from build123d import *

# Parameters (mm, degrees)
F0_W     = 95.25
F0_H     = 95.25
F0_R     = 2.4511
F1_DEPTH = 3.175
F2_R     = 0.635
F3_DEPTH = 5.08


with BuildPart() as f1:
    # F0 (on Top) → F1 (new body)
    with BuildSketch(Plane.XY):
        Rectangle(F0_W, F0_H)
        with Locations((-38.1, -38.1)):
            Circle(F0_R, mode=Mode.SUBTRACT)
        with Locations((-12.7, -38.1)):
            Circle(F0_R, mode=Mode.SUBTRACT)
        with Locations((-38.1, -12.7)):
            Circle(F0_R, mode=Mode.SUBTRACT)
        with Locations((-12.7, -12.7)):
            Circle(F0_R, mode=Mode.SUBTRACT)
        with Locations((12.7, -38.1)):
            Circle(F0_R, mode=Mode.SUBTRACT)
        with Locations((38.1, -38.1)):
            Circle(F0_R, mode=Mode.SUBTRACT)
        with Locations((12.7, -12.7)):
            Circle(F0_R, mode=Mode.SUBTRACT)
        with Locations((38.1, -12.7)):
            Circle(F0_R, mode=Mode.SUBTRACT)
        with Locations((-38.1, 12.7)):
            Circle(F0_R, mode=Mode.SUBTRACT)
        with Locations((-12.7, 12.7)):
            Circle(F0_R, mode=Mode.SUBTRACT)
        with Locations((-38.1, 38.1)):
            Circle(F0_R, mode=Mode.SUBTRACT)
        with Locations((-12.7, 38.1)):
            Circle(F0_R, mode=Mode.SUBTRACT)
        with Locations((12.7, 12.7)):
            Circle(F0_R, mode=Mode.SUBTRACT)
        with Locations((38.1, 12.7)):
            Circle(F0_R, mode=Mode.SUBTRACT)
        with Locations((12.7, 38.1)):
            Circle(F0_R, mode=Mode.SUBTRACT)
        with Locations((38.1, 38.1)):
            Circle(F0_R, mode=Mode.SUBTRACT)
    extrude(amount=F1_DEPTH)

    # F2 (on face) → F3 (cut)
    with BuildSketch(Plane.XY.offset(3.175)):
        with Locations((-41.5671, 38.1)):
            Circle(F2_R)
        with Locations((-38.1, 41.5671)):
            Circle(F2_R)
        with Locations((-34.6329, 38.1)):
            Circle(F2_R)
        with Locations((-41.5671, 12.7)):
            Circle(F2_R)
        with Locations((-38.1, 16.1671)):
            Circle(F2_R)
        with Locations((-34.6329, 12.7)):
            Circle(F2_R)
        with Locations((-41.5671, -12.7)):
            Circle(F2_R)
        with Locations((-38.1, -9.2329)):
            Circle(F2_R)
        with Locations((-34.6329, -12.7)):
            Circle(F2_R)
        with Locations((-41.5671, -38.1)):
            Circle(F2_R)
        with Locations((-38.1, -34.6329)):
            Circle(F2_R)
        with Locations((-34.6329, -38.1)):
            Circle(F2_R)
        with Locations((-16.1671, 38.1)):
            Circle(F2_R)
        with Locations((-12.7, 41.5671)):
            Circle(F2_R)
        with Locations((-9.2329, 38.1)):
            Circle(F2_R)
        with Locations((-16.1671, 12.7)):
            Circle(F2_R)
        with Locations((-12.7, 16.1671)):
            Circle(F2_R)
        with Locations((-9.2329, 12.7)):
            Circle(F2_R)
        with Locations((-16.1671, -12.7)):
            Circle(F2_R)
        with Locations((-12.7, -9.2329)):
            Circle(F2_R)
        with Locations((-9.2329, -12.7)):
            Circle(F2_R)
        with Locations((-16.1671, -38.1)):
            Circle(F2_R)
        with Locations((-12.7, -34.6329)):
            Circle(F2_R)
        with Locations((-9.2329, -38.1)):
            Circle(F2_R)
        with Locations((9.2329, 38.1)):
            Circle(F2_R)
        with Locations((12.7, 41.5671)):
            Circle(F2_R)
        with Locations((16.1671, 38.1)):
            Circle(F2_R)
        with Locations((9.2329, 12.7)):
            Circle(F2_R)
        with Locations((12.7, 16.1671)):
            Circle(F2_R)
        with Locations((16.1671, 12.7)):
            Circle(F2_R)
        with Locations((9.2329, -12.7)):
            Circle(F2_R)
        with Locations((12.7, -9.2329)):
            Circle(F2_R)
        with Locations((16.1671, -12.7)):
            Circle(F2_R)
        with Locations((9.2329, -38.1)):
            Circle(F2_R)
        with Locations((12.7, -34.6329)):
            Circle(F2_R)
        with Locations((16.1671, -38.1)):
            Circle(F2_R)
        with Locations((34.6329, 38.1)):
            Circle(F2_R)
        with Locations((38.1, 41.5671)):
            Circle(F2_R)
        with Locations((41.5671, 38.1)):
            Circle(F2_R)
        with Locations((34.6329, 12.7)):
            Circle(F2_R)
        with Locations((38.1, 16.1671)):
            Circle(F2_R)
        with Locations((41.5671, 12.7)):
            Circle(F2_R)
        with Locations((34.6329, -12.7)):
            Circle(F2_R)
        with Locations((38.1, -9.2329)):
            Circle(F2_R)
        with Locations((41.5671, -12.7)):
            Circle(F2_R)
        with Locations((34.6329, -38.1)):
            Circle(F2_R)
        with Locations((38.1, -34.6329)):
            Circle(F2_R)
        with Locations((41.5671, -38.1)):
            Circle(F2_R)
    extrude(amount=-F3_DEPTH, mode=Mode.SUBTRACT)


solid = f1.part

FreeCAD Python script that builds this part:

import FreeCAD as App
import Part
import Sketcher
Q = App.Units.Quantity

doc = App.newDocument("Part")
params = doc.addObject("Spreadsheet::Sheet", "Params")
for row, (alias, value) in enumerate([
    ("sketch1_diameter", "0.193 in"),
    ("sketch1_width", "3.75 in"),
    ("pad1_length", "0.125 in"),
    ("sketch2_diameter", "0.05 in"),
    ("pocket1_length", "0.2 in"),
], start=1):
    params.set(f"A{row}", alias)
    params.set(f"B{row}", "=" + value)
    params.setAlias(f"B{row}", alias)

body = doc.addObject("PartDesign::Body", "Body")

sketch1 = body.newObject("Sketcher::SketchObject", "Sketch")
sketch1.AttachmentSupport = (doc.getObject("XY_Plane"), [""])
sketch1.MapMode = "FlatFace"
sketch1.addGeometry([
    Part.LineSegment(App.Vector(-47.625, 47.625, 0), App.Vector(-47.625, -47.625, 0)),
    Part.LineSegment(App.Vector(-47.625, -47.625, 0), App.Vector(47.625, -47.625, 0)),
    Part.LineSegment(App.Vector(47.625, -47.625, 0), App.Vector(47.625, 47.625, 0)),
    Part.LineSegment(App.Vector(47.625, 47.625, 0), App.Vector(-47.625, 47.625, 0)),
    Part.Circle(App.Vector(-38.1, -38.1, 0), App.Vector(0, 0, 1), 2.4511),
    Part.Circle(App.Vector(-12.7, -38.1, 0), App.Vector(0, 0, 1), 2.4511),
    Part.Circle(App.Vector(-38.1, -12.7, 0), App.Vector(0, 0, 1), 2.4511),
    Part.Circle(App.Vector(-12.7, -12.7, 0), App.Vector(0, 0, 1), 2.4511),
    Part.Circle(App.Vector(12.7, -38.1, 0), App.Vector(0, 0, 1), 2.4511),
    Part.Circle(App.Vector(38.1, -38.1, 0), App.Vector(0, 0, 1), 2.4511),
    Part.Circle(App.Vector(12.7, -12.7, 0), App.Vector(0, 0, 1), 2.4511),
    Part.Circle(App.Vector(38.1, -12.7, 0), App.Vector(0, 0, 1), 2.4511),
    Part.Circle(App.Vector(-38.1, 12.7, 0), App.Vector(0, 0, 1), 2.4511),
    Part.Circle(App.Vector(-12.7, 12.7, 0), App.Vector(0, 0, 1), 2.4511),
    Part.Circle(App.Vector(-38.1, 38.1, 0), App.Vector(0, 0, 1), 2.4511),
    Part.Circle(App.Vector(-12.7, 38.1, 0), App.Vector(0, 0, 1), 2.4511),
    Part.Circle(App.Vector(12.7, 12.7, 0), App.Vector(0, 0, 1), 2.4511),
    Part.Circle(App.Vector(38.1, 12.7, 0), App.Vector(0, 0, 1), 2.4511),
    Part.Circle(App.Vector(12.7, 38.1, 0), App.Vector(0, 0, 1), 2.4511),
    Part.Circle(App.Vector(38.1, 38.1, 0), App.Vector(0, 0, 1), 2.4511),
], False)
sketch1.addConstraint([
    Sketcher.Constraint("Coincident", 0, 2, 1, 1),
    Sketcher.Constraint("Coincident", 1, 2, 2, 1),
    Sketcher.Constraint("Coincident", 2, 2, 3, 1),
    Sketcher.Constraint("Coincident", 3, 2, 0, 1),
    Sketcher.Constraint("Vertical", 0),
    Sketcher.Constraint("Horizontal", 1),
    Sketcher.Constraint("Vertical", 2),
    Sketcher.Constraint("Horizontal", 3),
    Sketcher.Constraint("Equal", 4, 5),
    Sketcher.Constraint("Equal", 5, 6),
    Sketcher.Constraint("Equal", 6, 7),
    Sketcher.Constraint("Equal", 7, 8),
    Sketcher.Constraint("Equal", 8, 9),
    Sketcher.Constraint("Equal", 9, 10),
    Sketcher.Constraint("Equal", 10, 11),
    Sketcher.Constraint("Equal", 11, 12),
    Sketcher.Constraint("Equal", 12, 13),
    Sketcher.Constraint("Equal", 13, 14),
    Sketcher.Constraint("Equal", 14, 15),
    Sketcher.Constraint("Equal", 15, 16),
    Sketcher.Constraint("Equal", 16, 17),
    Sketcher.Constraint("Equal", 17, 18),
    Sketcher.Constraint("Equal", 18, 19),
    Sketcher.Constraint("Symmetric", 11, 3, 12, 3, -1, 1),
    Sketcher.Constraint("Symmetric", 10, 3, 13, 3, -1, 1),
    Sketcher.Constraint("Symmetric", 9, 3, 14, 3, -1, 1),
    Sketcher.Constraint("Symmetric", 8, 3, 15, 3, -1, 1),
    Sketcher.Constraint("Symmetric", 7, 3, 16, 3, -1, 1),
    Sketcher.Constraint("Symmetric", 6, 3, 17, 3, -1, 1),
    Sketcher.Constraint("Symmetric", 5, 3, 18, 3, -1, 1),
    Sketcher.Constraint("Symmetric", 4, 3, 19, 3, -1, 1),
    Sketcher.Constraint("Symmetric", 0, 2, 2, 2, -1, 1),
    Sketcher.Constraint("Symmetric", 5, 3, 8, 3, -2),
    Sketcher.Constraint("Symmetric", 4, 3, 9, 3, -2),
    Sketcher.Constraint("Symmetric", 7, 3, 10, 3, -2),
    Sketcher.Constraint("Symmetric", 6, 3, 11, 3, -2),
    Sketcher.Constraint("Horizontal", 4, 3, 5, 3),
    Sketcher.Constraint("Horizontal", 6, 3, 7, 3),
    Sketcher.Constraint("Vertical", 4, 3, 6, 3),
    Sketcher.Constraint("Vertical", 5, 3, 7, 3),
    Sketcher.Constraint("Equal", 3, 0),
    Sketcher.Constraint("Diameter", 4, Q("0.193 in")),
    Sketcher.Constraint("DistanceX", 4, 3, 5, 3, Q("1 in")),
    Sketcher.Constraint("DistanceY", 4, 3, 6, 3, Q("1 in")),
    Sketcher.Constraint("DistanceX", 5, 3, 8, 3, Q("1 in")),
    Sketcher.Constraint("DistanceY", 6, 3, 12, 3, Q("1 in")),
    Sketcher.Constraint("DistanceX", 1, 1, 1, 2, Q("3.75 in")),
])
sketch1.setExpression("Constraints[41]", "Params.sketch1_diameter")
sketch1.setExpression("Constraints[46]", "Params.sketch1_width")
pad1 = body.newObject("PartDesign::Pad", "Pad")
pad1.Profile = sketch1
pad1.setExpression("Length", "Params.pad1_length")

sketch2 = body.newObject("Sketcher::SketchObject", "Sketch001")
sketch2.AttachmentSupport = (doc.getObject("XY_Plane"), [""])
sketch2.MapMode = "FlatFace"
sketch2.AttachmentOffset = App.Placement(App.Vector(0, 0, 0.125 * 25.4), App.Rotation())
sketch2.addGeometry([
    Part.Circle(App.Vector(-41.5671, 38.1, 0), App.Vector(0, 0, 1), 0.635),
    Part.Circle(App.Vector(-38.1, 41.5671, 0), App.Vector(0, 0, 1), 0.635),
    Part.Circle(App.Vector(-34.6329, 38.1, 0), App.Vector(0, 0, 1), 0.635),
    Part.Circle(App.Vector(-41.5671, 12.7, 0), App.Vector(0, 0, 1), 0.635),
    Part.Circle(App.Vector(-38.1, 16.1671, 0), App.Vector(0, 0, 1), 0.635),
    Part.Circle(App.Vector(-34.6329, 12.7, 0), App.Vector(0, 0, 1), 0.635),
    Part.Circle(App.Vector(-41.5671, -12.7, 0), App.Vector(0, 0, 1), 0.635),
    Part.Circle(App.Vector(-38.1, -9.2329, 0), App.Vector(0, 0, 1), 0.635),
    Part.Circle(App.Vector(-34.6329, -12.7, 0), App.Vector(0, 0, 1), 0.635),
    Part.Circle(App.Vector(-41.5671, -38.1, 0), App.Vector(0, 0, 1), 0.635),
    Part.Circle(App.Vector(-38.1, -34.6329, 0), App.Vector(0, 0, 1), 0.635),
    Part.Circle(App.Vector(-34.6329, -38.1, 0), App.Vector(0, 0, 1), 0.635),
    Part.Circle(App.Vector(-16.1671, 38.1, 0), App.Vector(0, 0, 1), 0.635),
    Part.Circle(App.Vector(-12.7, 41.5671, 0), App.Vector(0, 0, 1), 0.635),
    Part.Circle(App.Vector(-9.2329, 38.1, 0), App.Vector(0, 0, 1), 0.635),
    Part.Circle(App.Vector(-16.1671, 12.7, 0), App.Vector(0, 0, 1), 0.635),
    Part.Circle(App.Vector(-12.7, 16.1671, 0), App.Vector(0, 0, 1), 0.635),
    Part.Circle(App.Vector(-9.2329, 12.7, 0), App.Vector(0, 0, 1), 0.635),
    Part.Circle(App.Vector(-16.1671, -12.7, 0), App.Vector(0, 0, 1), 0.635),
    Part.Circle(App.Vector(-12.7, -9.2329, 0), App.Vector(0, 0, 1), 0.635),
    Part.Circle(App.Vector(-9.2329, -12.7, 0), App.Vector(0, 0, 1), 0.635),
    Part.Circle(App.Vector(-16.1671, -38.1, 0), App.Vector(0, 0, 1), 0.635),
    Part.Circle(App.Vector(-12.7, -34.6329, 0), App.Vector(0, 0, 1), 0.635),
    Part.Circle(App.Vector(-9.2329, -38.1, 0), App.Vector(0, 0, 1), 0.635),
    Part.Circle(App.Vector(9.2329, 38.1, 0), App.Vector(0, 0, 1), 0.635),
    Part.Circle(App.Vector(12.7, 41.5671, 0), App.Vector(0, 0, 1), 0.635),
    Part.Circle(App.Vector(16.1671, 38.1, 0), App.Vector(0, 0, 1), 0.635),
    Part.Circle(App.Vector(9.2329, 12.7, 0), App.Vector(0, 0, 1), 0.635),
    Part.Circle(App.Vector(12.7, 16.1671, 0), App.Vector(0, 0, 1), 0.635),
    Part.Circle(App.Vector(16.1671, 12.7, 0), App.Vector(0, 0, 1), 0.635),
    Part.Circle(App.Vector(9.2329, -12.7, 0), App.Vector(0, 0, 1), 0.635),
    Part.Circle(App.Vector(12.7, -9.2329, 0), App.Vector(0, 0, 1), 0.635),
    Part.Circle(App.Vector(16.1671, -12.7, 0), App.Vector(0, 0, 1), 0.635),
    Part.Circle(App.Vector(9.2329, -38.1, 0), App.Vector(0, 0, 1), 0.635),
    Part.Circle(App.Vector(12.7, -34.6329, 0), App.Vector(0, 0, 1), 0.635),
    Part.Circle(App.Vector(16.1671, -38.1, 0), App.Vector(0, 0, 1), 0.635),
    Part.Circle(App.Vector(34.6329, 38.1, 0), App.Vector(0, 0, 1), 0.635),
    Part.Circle(App.Vector(38.1, 41.5671, 0), App.Vector(0, 0, 1), 0.635),
    Part.Circle(App.Vector(41.5671, 38.1, 0), App.Vector(0, 0, 1), 0.635),
    Part.Circle(App.Vector(34.6329, 12.7, 0), App.Vector(0, 0, 1), 0.635),
    Part.Circle(App.Vector(38.1, 16.1671, 0), App.Vector(0, 0, 1), 0.635),
    Part.Circle(App.Vector(41.5671, 12.7, 0), App.Vector(0, 0, 1), 0.635),
    Part.Circle(App.Vector(34.6329, -12.7, 0), App.Vector(0, 0, 1), 0.635),
    Part.Circle(App.Vector(38.1, -9.2329, 0), App.Vector(0, 0, 1), 0.635),
    Part.Circle(App.Vector(41.5671, -12.7, 0), App.Vector(0, 0, 1), 0.635),
    Part.Circle(App.Vector(34.6329, -38.1, 0), App.Vector(0, 0, 1), 0.635),
    Part.Circle(App.Vector(38.1, -34.6329, 0), App.Vector(0, 0, 1), 0.635),
    Part.Circle(App.Vector(41.5671, -38.1, 0), App.Vector(0, 0, 1), 0.635),
], False)
sketch2.addConstraint([
    Sketcher.Constraint("Equal", 0, 1),
    Sketcher.Constraint("Equal", 1, 2),
    Sketcher.Constraint("Equal", 2, 3),
    Sketcher.Constraint("Equal", 3, 4),
    Sketcher.Constraint("Equal", 4, 5),
    Sketcher.Constraint("Equal", 5, 6),
    Sketcher.Constraint("Equal", 6, 7),
    Sketcher.Constraint("Equal", 7, 8),
    Sketcher.Constraint("Equal", 8, 9),
    Sketcher.Constraint("Equal", 9, 10),
    Sketcher.Constraint("Equal", 10, 11),
    Sketcher.Constraint("Equal", 11, 12),
    Sketcher.Constraint("Equal", 12, 13),
    Sketcher.Constraint("Equal", 13, 14),
    Sketcher.Constraint("Equal", 14, 15),
    Sketcher.Constraint("Equal", 15, 16),
    Sketcher.Constraint("Equal", 16, 17),
    Sketcher.Constraint("Equal", 17, 18),
    Sketcher.Constraint("Equal", 18, 19),
    Sketcher.Constraint("Equal", 19, 20),
    Sketcher.Constraint("Equal", 20, 21),
    Sketcher.Constraint("Equal", 21, 22),
    Sketcher.Constraint("Equal", 22, 23),
    Sketcher.Constraint("Equal", 23, 24),
    Sketcher.Constraint("Equal", 24, 25),
    Sketcher.Constraint("Equal", 25, 26),
    Sketcher.Constraint("Equal", 26, 27),
    Sketcher.Constraint("Equal", 27, 28),
    Sketcher.Constraint("Equal", 28, 29),
    Sketcher.Constraint("Equal", 29, 30),
    Sketcher.Constraint("Equal", 30, 31),
    Sketcher.Constraint("Equal", 31, 32),
    Sketcher.Constraint("Equal", 32, 33),
    Sketcher.Constraint("Equal", 33, 34),
    Sketcher.Constraint("Equal", 34, 35),
    Sketcher.Constraint("Equal", 35, 36),
    Sketcher.Constraint("Equal", 36, 37),
    Sketcher.Constraint("Equal", 37, 38),
    Sketcher.Constraint("Equal", 38, 39),
    Sketcher.Constraint("Equal", 39, 40),
    Sketcher.Constraint("Equal", 40, 41),
    Sketcher.Constraint("Equal", 41, 42),
    Sketcher.Constraint("Equal", 42, 43),
    Sketcher.Constraint("Equal", 43, 44),
    Sketcher.Constraint("Equal", 44, 45),
    Sketcher.Constraint("Equal", 45, 46),
    Sketcher.Constraint("Equal", 46, 47),
    Sketcher.Constraint("Symmetric", 23, 3, 24, 3, -1, 1),
    Sketcher.Constraint("Symmetric", 21, 3, 26, 3, -1, 1),
    Sketcher.Constraint("Symmetric", 20, 3, 27, 3, -1, 1),
    Sketcher.Constraint("Symmetric", 18, 3, 29, 3, -1, 1),
    Sketcher.Constraint("Symmetric", 17, 3, 30, 3, -1, 1),
    Sketcher.Constraint("Symmetric", 15, 3, 32, 3, -1, 1),
    Sketcher.Constraint("Symmetric", 14, 3, 33, 3, -1, 1),
    Sketcher.Constraint("Symmetric", 12, 3, 35, 3, -1, 1),
    Sketcher.Constraint("Symmetric", 11, 3, 36, 3, -1, 1),
    Sketcher.Constraint("Symmetric", 9, 3, 38, 3, -1, 1),
    Sketcher.Constraint("Symmetric", 8, 3, 39, 3, -1, 1),
    Sketcher.Constraint("Symmetric", 6, 3, 41, 3, -1, 1),
    Sketcher.Constraint("Symmetric", 5, 3, 42, 3, -1, 1),
    Sketcher.Constraint("Symmetric", 3, 3, 44, 3, -1, 1),
    Sketcher.Constraint("Symmetric", 2, 3, 45, 3, -1, 1),
    Sketcher.Constraint("Symmetric", 0, 3, 47, 3, -1, 1),
    Sketcher.Constraint("Symmetric", 14, 3, 24, 3, -2),
    Sketcher.Constraint("Symmetric", 13, 3, 25, 3, -2),
    Sketcher.Constraint("Symmetric", 12, 3, 26, 3, -2),
    Sketcher.Constraint("Symmetric", 17, 3, 27, 3, -2),
    Sketcher.Constraint("Symmetric", 16, 3, 28, 3, -2),
    Sketcher.Constraint("Symmetric", 15, 3, 29, 3, -2),
    Sketcher.Constraint("Symmetric", 19, 3, 31, 3, -2),
    Sketcher.Constraint("Symmetric", 22, 3, 34, 3, -2),
    Sketcher.Constraint("Symmetric", 2, 3, 36, 3, -2),
    Sketcher.Constraint("Symmetric", 1, 3, 37, 3, -2),
    Sketcher.Constraint("Symmetric", 0, 3, 38, 3, -2),
    Sketcher.Constraint("Symmetric", 5, 3, 39, 3, -2),
    Sketcher.Constraint("Symmetric", 4, 3, 40, 3, -2),
    Sketcher.Constraint("Symmetric", 3, 3, 41, 3, -2),
    Sketcher.Constraint("Symmetric", 7, 3, 43, 3, -2),
    Sketcher.Constraint("Symmetric", 10, 3, 46, 3, -2),
    Sketcher.Constraint("Horizontal", 0, 3, 2, 3),
    Sketcher.Constraint("Horizontal", 3, 3, 5, 3),
    Sketcher.Constraint("Horizontal", 2, 3, 12, 3),
    Sketcher.Constraint("Horizontal", 1, 3, 13, 3),
    Sketcher.Constraint("Horizontal", 12, 3, 14, 3),
    Sketcher.Constraint("Horizontal", 5, 3, 15, 3),
    Sketcher.Constraint("Horizontal", 4, 3, 16, 3),
    Sketcher.Constraint("Horizontal", 15, 3, 17, 3),
    Sketcher.Constraint("Horizontal", 7, 3, 19, 3),
    Sketcher.Constraint("Horizontal", 10, 3, 22, 3),
    Sketcher.Constraint("Vertical", 0, 3, 3, 3),
    Sketcher.Constraint("Vertical", 1, 3, 4, 3),
    Sketcher.Constraint("Vertical", 2, 3, 5, 3),
    Sketcher.Constraint("Vertical", 4, 3, 7, 3),
    Sketcher.Constraint("Vertical", 7, 3, 10, 3),
    Sketcher.Constraint("Vertical", 12, 3, 15, 3),
    Sketcher.Constraint("Vertical", 13, 3, 16, 3),
    Sketcher.Constraint("Vertical", 14, 3, 17, 3),
    Sketcher.Constraint("Vertical", 16, 3, 19, 3),
    Sketcher.Constraint("Vertical", 19, 3, 22, 3),
    Sketcher.Constraint("Diameter", 0, Q("0.05 in")),
    Sketcher.Constraint("DistanceY", 3, 3, 0, 3, Q("1 in")),
    Sketcher.Constraint("DistanceY", 4, 3, 1, 3, Q("1 in")),
    Sketcher.Constraint("DistanceY", 6, 3, 3, 3, Q("1 in")),
    Sketcher.Constraint("DistanceY", 7, 3, 4, 3, Q("1 in")),
    Sketcher.Constraint("DistanceY", 10, 3, 7, 3, Q("1 in")),
    Sketcher.Constraint("DistanceX", 0, 3, 12, 3, Q("1 in")),
    Sketcher.Constraint("DistanceX", 1, 3, 13, 3, Q("1 in")),
    Sketcher.Constraint("DistanceX", 2, 3, 14, 3, Q("1 in")),
    Sketcher.Constraint("DistanceX", 12, 3, 24, 3, Q("1 in")),
    Sketcher.Constraint("DistanceX", 13, 3, 25, 3, Q("1 in")),
    Sketcher.Constraint("DistanceX", 0, 3, 2, 3, Q("0.273 in")),
    Sketcher.Constraint("DistanceY", -1, 1, 1, 3, Q("1.6365 in")),
])
sketch2.setExpression("Constraints[99]", "Params.sketch2_diameter")
pocket1 = body.newObject("PartDesign::Pocket", "Pocket")
pocket1.Profile = sketch2
pocket1.setExpression("Length", "Params.pocket1_length")

doc.recompute()
